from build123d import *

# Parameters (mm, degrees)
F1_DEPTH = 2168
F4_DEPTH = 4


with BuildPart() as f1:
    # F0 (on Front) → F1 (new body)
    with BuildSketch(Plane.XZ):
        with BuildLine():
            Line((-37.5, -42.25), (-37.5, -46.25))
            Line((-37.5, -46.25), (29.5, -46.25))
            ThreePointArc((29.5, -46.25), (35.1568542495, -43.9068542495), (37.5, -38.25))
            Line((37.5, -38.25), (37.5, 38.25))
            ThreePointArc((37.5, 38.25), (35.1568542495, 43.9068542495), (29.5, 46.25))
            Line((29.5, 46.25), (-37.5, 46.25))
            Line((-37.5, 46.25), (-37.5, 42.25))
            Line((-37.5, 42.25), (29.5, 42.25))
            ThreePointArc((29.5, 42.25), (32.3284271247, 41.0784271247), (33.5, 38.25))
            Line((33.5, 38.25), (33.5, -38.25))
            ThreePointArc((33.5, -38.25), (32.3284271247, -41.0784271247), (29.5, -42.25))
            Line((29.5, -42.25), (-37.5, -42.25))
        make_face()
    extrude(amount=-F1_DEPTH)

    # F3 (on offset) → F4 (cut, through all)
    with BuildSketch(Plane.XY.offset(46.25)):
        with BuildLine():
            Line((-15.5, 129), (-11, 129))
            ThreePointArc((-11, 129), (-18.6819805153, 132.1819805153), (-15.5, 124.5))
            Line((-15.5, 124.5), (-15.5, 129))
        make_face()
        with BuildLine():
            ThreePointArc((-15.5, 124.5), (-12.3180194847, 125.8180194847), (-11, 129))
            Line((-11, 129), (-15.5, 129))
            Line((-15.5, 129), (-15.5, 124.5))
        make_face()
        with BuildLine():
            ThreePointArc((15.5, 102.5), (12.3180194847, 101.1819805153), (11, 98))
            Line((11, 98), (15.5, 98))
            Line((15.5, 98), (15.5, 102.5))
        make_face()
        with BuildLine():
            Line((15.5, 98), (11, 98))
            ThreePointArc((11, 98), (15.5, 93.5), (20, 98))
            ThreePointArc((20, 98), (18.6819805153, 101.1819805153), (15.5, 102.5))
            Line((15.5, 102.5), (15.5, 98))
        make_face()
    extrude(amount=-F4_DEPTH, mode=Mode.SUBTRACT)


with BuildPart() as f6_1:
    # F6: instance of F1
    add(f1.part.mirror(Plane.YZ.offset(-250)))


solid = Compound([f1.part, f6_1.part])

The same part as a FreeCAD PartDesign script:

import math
import FreeCAD as App
import Part
import Sketcher
Q = App.Units.Quantity

doc = App.newDocument("Part")
body = doc.addObject("PartDesign::Body", "Body")

sketch1 = body.newObject("Sketcher::SketchObject", "Sketch")
sketch1.AttachmentSupport = (doc.getObject("XZ_Plane"), [""])
sketch1.MapMode = "FlatFace"
sketch1.addGeometry(Part.LineSegment(App.Vector(-37.5, -42.2, 0), App.Vector(-37.5, -46.2, 0)), False)
sketch1.addGeometry(Part.LineSegment(App.Vector(-37.5, -46.2, 0), App.Vector(29.5, -46.2, 0)), False)
sketch1.addGeometry(Part.ArcOfCircle(Part.Circle(App.Vector(29.5, -38.2, 0), App.Vector(0, 0, 1), 8), math.radians(-90), math.radians(0)), False)
sketch1.addGeometry(Part.LineSegment(App.Vector(37.5, -38.2, 0), App.Vector(37.5, 38.2, 0)), False)
sketch1.addGeometry(Part.ArcOfCircle(Part.Circle(App.Vector(29.5, 38.2, 0), App.Vector(0, 0, 1), 8), math.radians(0), math.radians(90)), False)
sketch1.addGeometry(Part.LineSegment(App.Vector(29.5, 46.2, 0), App.Vector(-37.5, 46.2, 0)), False)
sketch1.addGeometry(Part.LineSegment(App.Vector(-37.5, 46.2, 0), App.Vector(-37.5, 42.2, 0)), False)
sketch1.addGeometry(Part.LineSegment(App.Vector(-37.5, 42.2, 0), App.Vector(29.5, 42.2, 0)), False)
sketch1.addGeometry(Part.ArcOfCircle(Part.Circle(App.Vector(29.5, 38.2, 0), App.Vector(0, 0, 1), 4), math.radians(0), math.radians(90)), False)
sketch1.addGeometry(Part.LineSegment(App.Vector(33.5, 38.2, 0), App.Vector(33.5, -38.2, 0)), False)
sketch1.addGeometry(Part.ArcOfCircle(Part.Circle(App.Vector(29.5, -38.2, 0), App.Vector(0, 0, 1), 4), math.radians(-90), math.radians(0)), False)
sketch1.addGeometry(Part.LineSegment(App.Vector(29.5, -42.2, 0), App.Vector(-37.5, -42.2, 0)), False)
sketch1.addConstraint(Sketcher.Constraint("Coincident", 0, 2, 1, 1))
sketch1.addConstraint(Sketcher.Constraint("Tangent", 1, 2, 2, 1))
sketch1.addConstraint(Sketcher.Constraint("Tangent", 2, 2, 3, 1))
sketch1.addConstraint(Sketcher.Constraint("Tangent", 3, 2, 4, 1))
sketch1.addConstraint(Sketcher.Constraint("Tangent", 4, 2, 5, 1))
sketch1.addConstraint(Sketcher.Constraint("Coincident", 5, 2, 6, 1))
sketch1.addConstraint(Sketcher.Constraint("Coincident", 6, 2, 7, 1))
sketch1.addConstraint(Sketcher.Constraint("Tangent", 7, 2, 8, 2))
sketch1.addConstraint(Sketcher.Constraint("Tangent", 8, 1, 9, 1))
sketch1.addConstraint(Sketcher.Constraint("Tangent", 9, 2, 10, 2))
sketch1.addConstraint(Sketcher.Constraint("Tangent", 10, 1, 11, 1))
sketch1.addConstraint(Sketcher.Constraint("Coincident", 11, 2, 0, 1))
sketch1.addConstraint(Sketcher.Constraint("Vertical", 0))
sketch1.addConstraint(Sketcher.Constraint("Horizontal", 1))
sketch1.addConstraint(Sketcher.Constraint("Vertical", 3))
sketch1.addConstraint(Sketcher.Constraint("Horizontal", 5))
sketch1.addConstraint(Sketcher.Constraint("Vertical", 6))
sketch1.addConstraint(Sketcher.Constraint("Horizontal", 7))
sketch1.addConstraint(Sketcher.Constraint("Vertical", 9))
sketch1.addConstraint(Sketcher.Constraint("Horizontal", 11))
sketch1.addConstraint(Sketcher.Constraint("Coincident", 8, 3, 4, 3))
sketch1.addConstraint(Sketcher.Constraint("Coincident", 10, 3, 2, 3))
sketch1.addConstraint(Sketcher.Constraint("Equal", 2, 4))
sketch1.addConstraint(Sketcher.Constraint("Symmetric", 0, 2, 5, 2, -1))
sketch1.addConstraint(Sketcher.Constraint("Radius", 2, Q("8 mm")))
sketch1.addConstraint(Sketcher.Constraint("Radius", 8, Q("4 mm")))
sketch1.addConstraint(Sketcher.Constraint("DistanceX", 1, 1, 1, 2, Q("67 mm")))
sketch1.addConstraint(Sketcher.Constraint("DistanceY", 3, 1, 3, 2, Q("76.5 mm")))
sketch1.addConstraint(Sketcher.Constraint("DistanceX", -1, 1, 2, 3, Q("29.5 mm")))
pad1 = body.newObject("PartDesign::Pad", "Pad")
pad1.Profile = sketch1
pad1.Length = 2168
pad1.Reversed = True

sketch2 = body.newObject("Sketcher::SketchObject", "Sketch001")
sketch2.AttachmentSupport = (doc.getObject("XY_Plane"), [""])
sketch2.MapMode = "FlatFace"
sketch2.AttachmentOffset = App.Placement(App.Vector(0, 0, 46.25), App.Rotation())
sketch2.addGeometry(Part.ArcOfCircle(Part.Circle(App.Vector(-15.5, 129, 0), App.Vector(0, 0, 1), 4.5), math.radians(0), math.radians(270)), False)
sketch2.addGeometry(Part.ArcOfCircle(Part.Circle(App.Vector(-15.5, 129, 0), App.Vector(0, 0, 1), 4.5), math.radians(-90), math.radians(0)), False)
sketch2.addGeometry(Part.ArcOfCircle(Part.Circle(App.Vector(15.5, 98, 0), App.Vector(0, 0, 1), 4.5), math.radians(90), math.radians(180)), False)
sketch2.addGeometry(Part.ArcOfCircle(Part.Circle(App.Vector(15.5, 98, 0), App.Vector(0, 0, 1), 4.5), math.radians(180), math.radians(360)), False)
sketch2.addGeometry(Part.ArcOfCircle(Part.Circle(App.Vector(15.5, 98, 0), App.Vector(0, 0, 1), 4.5), math.radians(0), math.radians(90)), False)
sketch2.addConstraint(Sketcher.Constraint("Tangent", 0, 1, 1, 2))
sketch2.addConstraint(Sketcher.Constraint("Coincident", 1, 1, 0, 2))
sketch2.addConstraint(Sketcher.Constraint("Tangent", 2, 2, 3, 1))
sketch2.addConstraint(Sketcher.Constraint("Tangent", 3, 2, 4, 1))
sketch2.addConstraint(Sketcher.Constraint("Tangent", 4, 2, 2, 1))
sketch2.addConstraint(Sketcher.Constraint("Equal", 1, 2))
sketch2.addConstraint(Sketcher.Constraint("Horizontal", 1, 3, 0, 1))
sketch2.addConstraint(Sketcher.Constraint("Horizontal", 4, 3, 2, 2))
sketch2.addConstraint(Sketcher.Constraint("Horizontal", 2, 2, 3, 2))
sketch2.addConstraint(Sketcher.Constraint("Vertical", 0, 3, 1, 1))
sketch2.addConstraint(Sketcher.Constraint("Vertical", 3, 3, 4, 2))
sketch2.addConstraint(Sketcher.Constraint("Radius", 0, Q("4.5 mm")))
sketch2.addConstraint(Sketcher.Constraint("DistanceY", -1, 1, 0, 3, Q("129 mm")))
sketch2.addConstraint(Sketcher.Constraint("DistanceY", -1, 1, 2, 3, Q("98 mm")))
sketch2.addConstraint(Sketcher.Constraint("DistanceX", 0, 1, -1, 1, Q("11 mm")))
sketch2.addConstraint(Sketcher.Constraint("DistanceX", -1, 1, 2, 2, Q("11 mm")))
pocket1 = body.newObject("PartDesign::Pocket", "Pocket")
pocket1.Profile = sketch2
pocket1.Length = 4
body2 = doc.addObject("PartDesign::Body", "Body001")
doc.recompute()

mirroring = doc.addObject("Part::Mirroring", "Mirroring")
mirroring.Source = body
mirroring.Base = App.Vector(-250, 0, 0)
mirroring.Normal = App.Vector(1, 0, 0)
body2.BaseFeature = mirroring
doc.recompute()
mirroring.Visibility = False

doc.recompute()
